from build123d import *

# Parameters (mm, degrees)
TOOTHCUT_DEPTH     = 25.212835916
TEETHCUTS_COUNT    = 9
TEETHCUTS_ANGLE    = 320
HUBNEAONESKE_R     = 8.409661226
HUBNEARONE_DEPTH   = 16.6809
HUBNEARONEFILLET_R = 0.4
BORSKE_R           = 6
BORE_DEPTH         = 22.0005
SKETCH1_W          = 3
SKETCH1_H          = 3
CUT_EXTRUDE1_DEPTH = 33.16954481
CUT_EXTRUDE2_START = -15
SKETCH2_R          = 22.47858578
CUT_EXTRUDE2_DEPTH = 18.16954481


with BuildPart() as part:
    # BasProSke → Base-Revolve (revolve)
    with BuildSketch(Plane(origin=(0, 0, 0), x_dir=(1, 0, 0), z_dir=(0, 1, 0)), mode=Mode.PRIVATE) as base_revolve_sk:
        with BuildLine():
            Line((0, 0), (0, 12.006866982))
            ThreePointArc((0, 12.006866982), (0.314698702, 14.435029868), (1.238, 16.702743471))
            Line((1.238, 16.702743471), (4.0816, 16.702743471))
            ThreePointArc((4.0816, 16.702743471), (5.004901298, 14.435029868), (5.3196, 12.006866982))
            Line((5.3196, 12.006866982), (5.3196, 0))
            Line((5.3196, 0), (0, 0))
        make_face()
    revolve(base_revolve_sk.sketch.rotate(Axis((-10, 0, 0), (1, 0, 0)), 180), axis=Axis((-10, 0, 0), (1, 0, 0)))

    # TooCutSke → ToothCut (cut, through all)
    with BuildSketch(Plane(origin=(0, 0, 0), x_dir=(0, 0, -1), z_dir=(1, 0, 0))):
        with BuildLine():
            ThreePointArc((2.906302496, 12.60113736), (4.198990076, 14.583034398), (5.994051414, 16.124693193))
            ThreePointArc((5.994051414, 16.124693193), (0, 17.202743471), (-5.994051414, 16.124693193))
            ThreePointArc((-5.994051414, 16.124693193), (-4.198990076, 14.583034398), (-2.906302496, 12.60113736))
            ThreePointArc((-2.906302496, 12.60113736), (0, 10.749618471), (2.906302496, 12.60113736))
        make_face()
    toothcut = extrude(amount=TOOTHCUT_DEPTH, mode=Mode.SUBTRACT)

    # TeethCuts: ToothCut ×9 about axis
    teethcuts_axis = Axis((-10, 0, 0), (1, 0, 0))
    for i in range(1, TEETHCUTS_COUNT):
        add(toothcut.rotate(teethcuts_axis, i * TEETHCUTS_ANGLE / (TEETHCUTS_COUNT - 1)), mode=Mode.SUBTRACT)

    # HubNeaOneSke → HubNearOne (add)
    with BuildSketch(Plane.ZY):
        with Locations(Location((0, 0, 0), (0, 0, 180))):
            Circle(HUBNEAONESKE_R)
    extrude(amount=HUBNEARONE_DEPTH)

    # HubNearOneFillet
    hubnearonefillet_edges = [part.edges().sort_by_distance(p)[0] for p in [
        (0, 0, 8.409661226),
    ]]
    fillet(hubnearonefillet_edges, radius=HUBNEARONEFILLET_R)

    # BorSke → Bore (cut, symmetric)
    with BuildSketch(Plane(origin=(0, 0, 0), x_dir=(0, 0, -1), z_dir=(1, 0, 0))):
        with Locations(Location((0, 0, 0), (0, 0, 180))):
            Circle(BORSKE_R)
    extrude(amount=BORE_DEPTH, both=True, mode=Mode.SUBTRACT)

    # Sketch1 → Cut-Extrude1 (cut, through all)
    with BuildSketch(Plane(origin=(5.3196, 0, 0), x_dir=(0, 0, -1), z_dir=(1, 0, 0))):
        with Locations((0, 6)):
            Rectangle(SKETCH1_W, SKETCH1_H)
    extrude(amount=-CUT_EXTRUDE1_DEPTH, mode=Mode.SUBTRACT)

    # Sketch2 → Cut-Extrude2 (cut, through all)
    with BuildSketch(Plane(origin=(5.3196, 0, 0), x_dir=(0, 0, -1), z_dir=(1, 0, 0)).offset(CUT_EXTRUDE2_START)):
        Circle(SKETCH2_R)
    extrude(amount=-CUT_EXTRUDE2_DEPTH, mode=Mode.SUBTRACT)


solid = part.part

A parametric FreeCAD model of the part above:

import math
import FreeCAD as App
import Part
import Sketcher

V = App.Vector


def edges_at(feature, points):
    """Names of the edges that pass closest to the given points."""
    edges = feature.Shape.Edges
    near = lambda p: min(range(len(edges)), key=lambda i: edges[i].distToShape(Part.Vertex(*p))[0])
    return sorted({f"Edge{near(p) + 1}" for p in points})


def add_polygon(sketch, points):
    """Adds a closed chain of lines whose ends are joined by coincident constraints."""
    first, n = sketch.GeometryCount, len(points)
    for a, b in zip(points, points[1:] + points[:1]):
        sketch.addGeometry(Part.LineSegment(App.Vector(*a, 0), App.Vector(*b, 0)), False)
    for i in range(n):
        sketch.addConstraint(Sketcher.Constraint("Coincident", first + i, 2, first + (i + 1) % n, 1))

doc = App.newDocument("Part")
body = doc.addObject("PartDesign::Body", "Body")

sketch1 = body.newObject("Sketcher::SketchObject", "Sketch")
sketch1.AttachmentSupport = (doc.getObject("XZ_Plane"), [""])
sketch1.MapMode = "FlatFace"
sketch1.addGeometry(Part.LineSegment(V(0, -12.006867, 0), V(0, 0, 0)), False)
sketch1.addGeometry(Part.LineSegment(V(0, 0, 0), V(5.3196, 0, 0)), False)
sketch1.addGeometry(Part.LineSegment(V(5.3196, 0, 0), V(5.3196, -12.006867, 0)), False)
sketch1.addGeometry(Part.ArcOfCircle(Part.Circle(V(-4.2054, -12.006867, 0), V(0, 0, 1), 9.525), math.radians(-29.53831), math.radians(0)), False)
sketch1.addGeometry(Part.LineSegment(V(4.0816, -16.702743, 0), V(1.238, -16.702743, 0)), False)
sketch1.addGeometry(Part.ArcOfCircle(Part.Circle(V(9.525, -12.006867, 0), V(0, 0, 1), 9.525), math.radians(180), math.radians(209.53831)), False)
sketch1.addConstraint(Sketcher.Constraint("Coincident", 0, 2, 1, 1))
sketch1.addConstraint(Sketcher.Constraint("Coincident", 1, 2, 2, 1))
sketch1.addConstraint(Sketcher.Constraint("Tangent", 2, 2, 3, 2))
sketch1.addConstraint(Sketcher.Constraint("Coincident", 3, 1, 4, 1))
sketch1.addConstraint(Sketcher.Constraint("Coincident", 4, 2, 5, 2))
sketch1.addConstraint(Sketcher.Constraint("Tangent", 5, 1, 0, 1))
sketch1.addConstraint(Sketcher.Constraint("Vertical", 0))
sketch1.addConstraint(Sketcher.Constraint("Horizontal", 1))
sketch1.addConstraint(Sketcher.Constraint("Vertical", 2))
sketch1.addConstraint(Sketcher.Constraint("Horizontal", 4))
sketch1.addConstraint(Sketcher.Constraint("Coincident", 0, 2, -1, 1))
sketch1.addConstraint(Sketcher.Constraint("Equal", 3, 5))
sketch1.addConstraint(Sketcher.Constraint("Horizontal", 3, 3, 5, 3))
sketch1.addConstraint(Sketcher.Constraint("Radius", 3, 9.525))
sketch1.addConstraint(Sketcher.Constraint("DistanceX", 1, 1, 1, 2, 5.3196))
sketch1.addConstraint(Sketcher.Constraint("DistanceX", 4, 2, 4, 1, 2.8436))
sketch1.addConstraint(Sketcher.Constraint("DistanceY", 0, 1, 0, 2, 12.006867))
revolution = body.newObject("PartDesign::Revolution", "Revolution")
revolution.Profile = sketch1
revolution.ReferenceAxis = (sketch1, ["H_Axis"])
revolution.Angle = 360

sketch2 = body.newObject("Sketcher::SketchObject", "Sketch001")
sketch2.AttachmentSupport = (doc.getObject("YZ_Plane"), [""])
sketch2.MapMode = "FlatFace"
sketch2.addGeometry(Part.ArcOfCircle(Part.Circle(V(9.058751, -10.502974, 0), V(0, 0, 1), 8.382), math.radians(32.542785), math.radians(65)), False)
sketch2.addGeometry(Part.ArcOfCircle(Part.Circle(V(0, 0, 0), V(0, 0, 1), 17.202743), math.radians(-20.391671), math.radians(20.391671)), False)
sketch2.addGeometry(Part.ArcOfCircle(Part.Circle(V(9.058751, 10.502974, 0), V(0, 0, 1), 8.382), math.radians(-65), math.radians(-32.542785)), False)
sketch2.addGeometry(Part.ArcOfCircle(Part.Circle(V(13.956368, 0, 0), V(0, 0, 1), 3.20675), math.radians(115), math.radians(245)), False)
sketch2.addConstraint(Sketcher.Constraint("Coincident", 0, 1, 1, 1))
sketch2.addConstraint(Sketcher.Constraint("Coincident", 1, 2, 2, 2))
sketch2.addConstraint(Sketcher.Constraint("Tangent", 2, 1, 3, 1))
sketch2.addConstraint(Sketcher.Constraint("Tangent", 3, 2, 0, 2))
sketch2.addConstraint(Sketcher.Constraint("Coincident", 1, 3, -1, 1))
sketch2.addConstraint(Sketcher.Constraint("Equal", 0, 2))
sketch2.addConstraint(Sketcher.Constraint("Symmetric", 0, 3, 2, 3, -1))
sketch2.addConstraint(Sketcher.Constraint("Radius", 0, 8.382))
sketch2.addConstraint(Sketcher.Constraint("Radius", 3, 3.20675))
sketch2.addConstraint(Sketcher.Constraint("Radius", 1, 17.202743))
sketch2.addConstraint(Sketcher.Constraint("DistanceX", -1, 1, 0, 3, 9.058751))
sketch2.addConstraint(Sketcher.Constraint("DistanceX", -1, 1, 3, 3, 13.956368))
pocket1 = body.newObject("PartDesign::Pocket", "Pocket")
pocket1.Profile = sketch2
pocket1.Type = "ThroughAll"
pocket1.Reversed = True
doc.recompute()

polarpattern = body.newObject("PartDesign::PolarPattern", "PolarPattern")
polarpattern.Originals = [pocket1]
polarpattern.Axis = (doc.getObject("X_Axis"), [""])
polarpattern.Angle = 360
polarpattern.Occurrences = 9
body.Tip = polarpattern

sketch3 = body.newObject("Sketcher::SketchObject", "Sketch002")
sketch3.AttachmentSupport = (doc.getObject("YZ_Plane"), [""])
sketch3.MapMode = "FlatFace"
sketch3.addGeometry(Part.Circle(V(0, 0, 0), V(0, 0, 1), 8.409661), False)
sketch3.addConstraint(Sketcher.Constraint("Coincident", 0, 3, -1, 1))
sketch3.addConstraint(Sketcher.Constraint("Diameter", 0, 16.819322))
pad1 = body.newObject("PartDesign::Pad", "Pad")
pad1.Profile = sketch3
pad1.Length = 16.6809
pad1.Reversed = True
doc.recompute()

fillet = body.newObject("PartDesign::Fillet", "Fillet")
fillet.Base = (pad1, edges_at(pad1, [(0, 0, 8.41)]))
fillet.Radius = 0.4

sketch4 = body.newObject("Sketcher::SketchObject", "Sketch003")
sketch4.AttachmentSupport = (doc.getObject("YZ_Plane"), [""])
sketch4.MapMode = "FlatFace"
sketch4.addGeometry(Part.Circle(V(0, 0, 0), V(0, 0, 1), 6), False)
sketch4.addConstraint(Sketcher.Constraint("Coincident", 0, 3, -1, 1))
sketch4.addConstraint(Sketcher.Constraint("Diameter", 0, 12.0))
pocket2 = body.newObject("PartDesign::Pocket", "Pocket001")
pocket2.Profile = sketch4
pocket2.Length = 44.001
pocket2.Midplane = True

sketch5 = body.newObject("Sketcher::SketchObject", "Sketch004")
sketch5.AttachmentSupport = (doc.getObject("YZ_Plane"), [""])
sketch5.MapMode = "FlatFace"
sketch5.AttachmentOffset = App.Placement(V(0, 0, 5.3196), App.Rotation())
add_polygon(sketch5, [(7.5, 1.5), (4.5, 1.5), (4.5, -1.5), (7.5, -1.5)])
sketch5.addConstraint(Sketcher.Constraint("Horizontal", 0))
sketch5.addConstraint(Sketcher.Constraint("Vertical", 1))
sketch5.addConstraint(Sketcher.Constraint("Horizontal", 2))
sketch5.addConstraint(Sketcher.Constraint("Vertical", 3))
sketch5.addConstraint(Sketcher.Constraint("Equal", 2, 1))
sketch5.addConstraint(Sketcher.Constraint("DistanceX", 0, 2, 0, 1, 3.0))
sketch5.addConstraint(Sketcher.Constraint("DistanceX", -1, 1, 0, 2, 4.5))
sketch5.addConstraint(Sketcher.Constraint("DistanceY", -1, 1, 0, 2, 1.5))
pocket3 = body.newObject("PartDesign::Pocket", "Pocket002")
pocket3.Profile = sketch5
pocket3.Type = "ThroughAll"

sketch6 = body.newObject("Sketcher::SketchObject", "Sketch005")
sketch6.AttachmentSupport = (doc.getObject("YZ_Plane"), [""])
sketch6.MapMode = "FlatFace"
sketch6.AttachmentOffset = App.Placement(V(0, 0, -9.6804), App.Rotation())
sketch6.addGeometry(Part.Circle(V(0, 0, 0), V(0, 0, 1), 22.478586), False)
sketch6.addConstraint(Sketcher.Constraint("Coincident", 0, 3, -1, 1))
sketch6.addConstraint(Sketcher.Constraint("Diameter", 0, 44.957172))
pocket4 = body.newObject("PartDesign::Pocket", "Pocket003")
pocket4.Profile = sketch6
pocket4.Type = "ThroughAll"

doc.recompute()
